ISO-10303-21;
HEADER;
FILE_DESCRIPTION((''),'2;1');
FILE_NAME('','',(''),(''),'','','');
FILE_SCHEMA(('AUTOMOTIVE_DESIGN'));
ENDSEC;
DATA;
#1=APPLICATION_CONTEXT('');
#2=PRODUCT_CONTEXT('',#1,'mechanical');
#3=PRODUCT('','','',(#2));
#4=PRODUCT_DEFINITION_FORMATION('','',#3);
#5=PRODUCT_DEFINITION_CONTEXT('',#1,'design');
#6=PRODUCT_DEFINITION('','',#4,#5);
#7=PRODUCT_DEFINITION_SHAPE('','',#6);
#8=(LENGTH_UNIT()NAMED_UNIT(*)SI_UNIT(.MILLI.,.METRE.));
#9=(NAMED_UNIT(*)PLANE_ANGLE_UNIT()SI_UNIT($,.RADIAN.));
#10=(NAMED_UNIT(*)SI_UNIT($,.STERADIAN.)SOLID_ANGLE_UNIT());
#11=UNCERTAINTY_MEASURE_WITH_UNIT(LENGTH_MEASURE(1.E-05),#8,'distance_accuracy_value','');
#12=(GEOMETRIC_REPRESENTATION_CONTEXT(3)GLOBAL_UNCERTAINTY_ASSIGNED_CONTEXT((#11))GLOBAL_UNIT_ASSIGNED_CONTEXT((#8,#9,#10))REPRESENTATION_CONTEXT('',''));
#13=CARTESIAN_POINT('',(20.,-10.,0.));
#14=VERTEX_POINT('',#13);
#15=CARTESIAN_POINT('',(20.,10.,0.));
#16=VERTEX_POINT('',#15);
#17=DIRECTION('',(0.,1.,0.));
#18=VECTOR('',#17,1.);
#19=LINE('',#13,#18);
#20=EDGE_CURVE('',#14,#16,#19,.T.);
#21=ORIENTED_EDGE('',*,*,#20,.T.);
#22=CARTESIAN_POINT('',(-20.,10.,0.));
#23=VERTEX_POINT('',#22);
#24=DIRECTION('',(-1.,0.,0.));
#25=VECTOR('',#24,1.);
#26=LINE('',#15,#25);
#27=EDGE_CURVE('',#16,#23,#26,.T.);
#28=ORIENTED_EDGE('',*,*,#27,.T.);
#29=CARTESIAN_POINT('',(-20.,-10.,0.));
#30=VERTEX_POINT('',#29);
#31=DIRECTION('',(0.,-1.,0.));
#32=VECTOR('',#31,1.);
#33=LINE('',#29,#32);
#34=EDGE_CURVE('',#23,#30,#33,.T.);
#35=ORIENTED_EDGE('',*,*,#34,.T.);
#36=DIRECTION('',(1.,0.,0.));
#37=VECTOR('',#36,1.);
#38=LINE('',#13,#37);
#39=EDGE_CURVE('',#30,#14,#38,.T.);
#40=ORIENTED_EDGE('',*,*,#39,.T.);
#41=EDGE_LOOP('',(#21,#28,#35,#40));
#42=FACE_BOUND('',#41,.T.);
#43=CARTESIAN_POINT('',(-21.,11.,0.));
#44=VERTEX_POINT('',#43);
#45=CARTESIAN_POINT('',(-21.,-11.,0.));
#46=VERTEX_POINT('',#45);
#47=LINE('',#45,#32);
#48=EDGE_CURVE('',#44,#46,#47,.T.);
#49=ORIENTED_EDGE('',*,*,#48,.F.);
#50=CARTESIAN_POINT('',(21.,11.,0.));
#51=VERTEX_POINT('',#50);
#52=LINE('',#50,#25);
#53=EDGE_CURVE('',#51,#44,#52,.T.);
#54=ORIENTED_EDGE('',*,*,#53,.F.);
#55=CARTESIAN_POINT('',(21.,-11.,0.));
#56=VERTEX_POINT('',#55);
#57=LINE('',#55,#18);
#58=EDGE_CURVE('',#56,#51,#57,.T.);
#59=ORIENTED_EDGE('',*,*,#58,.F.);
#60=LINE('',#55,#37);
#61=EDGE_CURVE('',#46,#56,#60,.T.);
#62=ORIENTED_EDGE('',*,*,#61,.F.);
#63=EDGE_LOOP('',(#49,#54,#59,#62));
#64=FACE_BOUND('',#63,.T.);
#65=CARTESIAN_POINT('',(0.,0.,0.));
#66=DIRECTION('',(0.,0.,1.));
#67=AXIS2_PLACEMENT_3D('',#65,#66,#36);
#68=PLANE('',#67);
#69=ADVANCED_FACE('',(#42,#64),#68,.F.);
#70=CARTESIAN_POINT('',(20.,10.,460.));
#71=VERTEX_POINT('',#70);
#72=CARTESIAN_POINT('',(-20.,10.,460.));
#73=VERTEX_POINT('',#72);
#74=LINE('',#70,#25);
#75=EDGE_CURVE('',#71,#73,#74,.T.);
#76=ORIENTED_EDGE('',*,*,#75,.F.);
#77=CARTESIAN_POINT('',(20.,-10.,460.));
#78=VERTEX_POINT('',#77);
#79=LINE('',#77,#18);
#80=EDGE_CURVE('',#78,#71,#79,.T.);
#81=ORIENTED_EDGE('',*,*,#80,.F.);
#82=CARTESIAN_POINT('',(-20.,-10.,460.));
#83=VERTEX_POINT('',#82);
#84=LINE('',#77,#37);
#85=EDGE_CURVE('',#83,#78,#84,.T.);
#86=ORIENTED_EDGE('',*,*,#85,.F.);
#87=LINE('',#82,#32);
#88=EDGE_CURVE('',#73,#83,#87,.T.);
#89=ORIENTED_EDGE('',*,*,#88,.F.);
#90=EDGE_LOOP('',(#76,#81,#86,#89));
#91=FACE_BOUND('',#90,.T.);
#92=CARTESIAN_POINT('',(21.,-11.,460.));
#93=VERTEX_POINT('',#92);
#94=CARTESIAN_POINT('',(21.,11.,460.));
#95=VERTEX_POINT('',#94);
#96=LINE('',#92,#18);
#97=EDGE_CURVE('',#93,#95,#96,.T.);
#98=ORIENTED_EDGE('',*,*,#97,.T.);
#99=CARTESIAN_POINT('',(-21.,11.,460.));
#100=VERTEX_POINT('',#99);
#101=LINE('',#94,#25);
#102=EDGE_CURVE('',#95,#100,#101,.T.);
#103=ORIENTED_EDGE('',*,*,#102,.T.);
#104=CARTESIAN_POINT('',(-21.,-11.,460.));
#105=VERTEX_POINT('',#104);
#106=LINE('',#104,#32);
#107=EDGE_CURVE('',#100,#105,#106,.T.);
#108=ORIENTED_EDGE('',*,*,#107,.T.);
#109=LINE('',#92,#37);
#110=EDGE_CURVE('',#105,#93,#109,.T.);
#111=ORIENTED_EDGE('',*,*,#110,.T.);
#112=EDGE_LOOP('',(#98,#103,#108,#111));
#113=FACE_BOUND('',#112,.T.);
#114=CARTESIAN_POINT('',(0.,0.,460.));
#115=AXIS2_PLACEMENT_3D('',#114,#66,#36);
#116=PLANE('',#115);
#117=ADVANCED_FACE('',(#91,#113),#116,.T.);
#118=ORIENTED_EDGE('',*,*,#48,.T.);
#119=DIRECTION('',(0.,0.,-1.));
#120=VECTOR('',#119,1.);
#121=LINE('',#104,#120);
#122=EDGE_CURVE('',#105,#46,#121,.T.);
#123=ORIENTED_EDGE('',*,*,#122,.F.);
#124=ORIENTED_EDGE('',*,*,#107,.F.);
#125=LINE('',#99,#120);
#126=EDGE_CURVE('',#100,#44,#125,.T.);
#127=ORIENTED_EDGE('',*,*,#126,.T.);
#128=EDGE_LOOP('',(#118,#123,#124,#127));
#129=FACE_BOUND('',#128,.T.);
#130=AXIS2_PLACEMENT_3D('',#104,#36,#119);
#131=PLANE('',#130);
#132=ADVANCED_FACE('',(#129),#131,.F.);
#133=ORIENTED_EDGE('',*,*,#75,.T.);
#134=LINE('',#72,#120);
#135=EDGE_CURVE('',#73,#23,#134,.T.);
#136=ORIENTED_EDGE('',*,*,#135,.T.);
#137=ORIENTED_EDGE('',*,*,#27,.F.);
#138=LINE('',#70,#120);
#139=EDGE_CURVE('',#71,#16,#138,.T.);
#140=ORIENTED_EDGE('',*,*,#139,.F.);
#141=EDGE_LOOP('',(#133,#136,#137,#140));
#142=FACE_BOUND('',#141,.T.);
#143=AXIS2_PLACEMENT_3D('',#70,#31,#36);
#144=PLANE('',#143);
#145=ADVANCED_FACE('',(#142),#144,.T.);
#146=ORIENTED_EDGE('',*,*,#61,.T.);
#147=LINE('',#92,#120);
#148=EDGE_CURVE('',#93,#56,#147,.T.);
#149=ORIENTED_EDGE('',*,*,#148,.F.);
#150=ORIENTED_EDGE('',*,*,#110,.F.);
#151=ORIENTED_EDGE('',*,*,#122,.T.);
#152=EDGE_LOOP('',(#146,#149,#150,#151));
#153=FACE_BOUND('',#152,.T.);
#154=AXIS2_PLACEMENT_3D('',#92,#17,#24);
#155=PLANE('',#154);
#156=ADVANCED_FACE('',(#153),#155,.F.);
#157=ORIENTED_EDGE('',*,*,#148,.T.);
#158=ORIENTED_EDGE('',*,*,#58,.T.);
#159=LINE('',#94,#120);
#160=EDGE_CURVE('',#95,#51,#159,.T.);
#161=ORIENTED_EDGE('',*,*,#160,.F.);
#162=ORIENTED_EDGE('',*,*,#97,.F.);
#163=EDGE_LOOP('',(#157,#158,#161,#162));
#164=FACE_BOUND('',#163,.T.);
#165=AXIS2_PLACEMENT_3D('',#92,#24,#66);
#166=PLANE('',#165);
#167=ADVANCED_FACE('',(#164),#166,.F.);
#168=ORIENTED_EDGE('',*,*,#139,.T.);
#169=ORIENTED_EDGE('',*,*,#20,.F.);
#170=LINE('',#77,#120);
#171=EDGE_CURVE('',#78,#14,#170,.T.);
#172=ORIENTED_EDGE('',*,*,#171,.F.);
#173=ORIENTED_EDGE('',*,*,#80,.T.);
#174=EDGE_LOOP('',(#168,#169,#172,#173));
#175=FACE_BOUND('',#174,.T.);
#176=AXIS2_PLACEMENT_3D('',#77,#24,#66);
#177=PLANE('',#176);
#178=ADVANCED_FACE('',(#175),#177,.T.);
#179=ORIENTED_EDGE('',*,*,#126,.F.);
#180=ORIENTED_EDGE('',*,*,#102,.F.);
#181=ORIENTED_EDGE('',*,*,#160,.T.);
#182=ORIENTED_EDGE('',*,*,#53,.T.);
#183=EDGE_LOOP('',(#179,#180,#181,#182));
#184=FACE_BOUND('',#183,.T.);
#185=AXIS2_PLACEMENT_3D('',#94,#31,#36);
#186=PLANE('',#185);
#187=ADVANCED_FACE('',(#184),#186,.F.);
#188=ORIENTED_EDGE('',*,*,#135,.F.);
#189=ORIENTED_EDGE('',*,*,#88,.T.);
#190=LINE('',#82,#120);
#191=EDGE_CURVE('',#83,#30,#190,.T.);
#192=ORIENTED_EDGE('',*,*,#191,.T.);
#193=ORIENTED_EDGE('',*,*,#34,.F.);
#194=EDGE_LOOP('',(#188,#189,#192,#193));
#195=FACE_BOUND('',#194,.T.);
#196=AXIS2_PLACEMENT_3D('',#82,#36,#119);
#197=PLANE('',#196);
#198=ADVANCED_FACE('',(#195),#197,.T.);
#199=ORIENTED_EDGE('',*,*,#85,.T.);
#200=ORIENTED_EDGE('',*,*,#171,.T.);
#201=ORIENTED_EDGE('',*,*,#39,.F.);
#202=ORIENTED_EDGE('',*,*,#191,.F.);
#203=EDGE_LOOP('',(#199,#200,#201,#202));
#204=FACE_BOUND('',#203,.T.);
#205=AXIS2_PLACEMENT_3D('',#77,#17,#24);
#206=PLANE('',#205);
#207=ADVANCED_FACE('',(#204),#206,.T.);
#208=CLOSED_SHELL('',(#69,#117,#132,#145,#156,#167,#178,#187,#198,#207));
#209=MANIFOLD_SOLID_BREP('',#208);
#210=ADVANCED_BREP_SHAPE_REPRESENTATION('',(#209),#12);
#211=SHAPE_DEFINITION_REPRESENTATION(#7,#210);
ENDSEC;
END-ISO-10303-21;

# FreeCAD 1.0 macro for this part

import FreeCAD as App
import Part
import Sketcher


def add_polygon(sketch, points):
    """Adds a closed chain of lines whose ends are joined by coincident constraints."""
    first, n = sketch.GeometryCount, len(points)
    for a, b in zip(points, points[1:] + points[:1]):
        sketch.addGeometry(Part.LineSegment(App.Vector(*a, 0), App.Vector(*b, 0)), False)
    for i in range(n):
        sketch.addConstraint(Sketcher.Constraint("Coincident", first + i, 2, first + (i + 1) % n, 1))

doc = App.newDocument("Part")
body = doc.addObject("PartDesign::Body", "Body")

sketch1 = doc.addObject("Sketcher::SketchObject", "Sketch")
body.addObject(sketch1)
sketch1.AttachmentSupport = (doc.XY_Plane, [""])
sketch1.MapMode = "FlatFace"
add_polygon(sketch1, [(-21, 11), (-21, -11), (21, -11), (21, 11)])
add_polygon(sketch1, [(20, -10), (-20, -10), (-20, 10), (20, 10)])
sketch1.addConstraint([
    Sketcher.Constraint("Vertical", 0),
    Sketcher.Constraint("Horizontal", 1),
    Sketcher.Constraint("Vertical", 2),
    Sketcher.Constraint("Horizontal", 3),
    Sketcher.Constraint("Horizontal", 4),
    Sketcher.Constraint("Vertical", 5),
    Sketcher.Constraint("Horizontal", 6),
    Sketcher.Constraint("Vertical", 7),
    Sketcher.Constraint("Symmetric", 0, 2, 2, 2, -1, 1),
    Sketcher.Constraint("Symmetric", 4, 2, 6, 2, -1, 1),
    Sketcher.Constraint("DistanceX", 1, 1, 1, 2, 42.0),
    Sketcher.Constraint("DistanceX", 4, 2, 4, 1, 40.0),
    Sketcher.Constraint("DistanceY", 0, 2, 0, 1, 22.0),
    Sketcher.Constraint("DistanceY", 5, 1, 5, 2, 20.0),
])
pad1 = doc.addObject("PartDesign::Pad", "Pad")
body.addObject(pad1)
pad1.Profile = sketch1
pad1.Length = 460

doc.recompute()
